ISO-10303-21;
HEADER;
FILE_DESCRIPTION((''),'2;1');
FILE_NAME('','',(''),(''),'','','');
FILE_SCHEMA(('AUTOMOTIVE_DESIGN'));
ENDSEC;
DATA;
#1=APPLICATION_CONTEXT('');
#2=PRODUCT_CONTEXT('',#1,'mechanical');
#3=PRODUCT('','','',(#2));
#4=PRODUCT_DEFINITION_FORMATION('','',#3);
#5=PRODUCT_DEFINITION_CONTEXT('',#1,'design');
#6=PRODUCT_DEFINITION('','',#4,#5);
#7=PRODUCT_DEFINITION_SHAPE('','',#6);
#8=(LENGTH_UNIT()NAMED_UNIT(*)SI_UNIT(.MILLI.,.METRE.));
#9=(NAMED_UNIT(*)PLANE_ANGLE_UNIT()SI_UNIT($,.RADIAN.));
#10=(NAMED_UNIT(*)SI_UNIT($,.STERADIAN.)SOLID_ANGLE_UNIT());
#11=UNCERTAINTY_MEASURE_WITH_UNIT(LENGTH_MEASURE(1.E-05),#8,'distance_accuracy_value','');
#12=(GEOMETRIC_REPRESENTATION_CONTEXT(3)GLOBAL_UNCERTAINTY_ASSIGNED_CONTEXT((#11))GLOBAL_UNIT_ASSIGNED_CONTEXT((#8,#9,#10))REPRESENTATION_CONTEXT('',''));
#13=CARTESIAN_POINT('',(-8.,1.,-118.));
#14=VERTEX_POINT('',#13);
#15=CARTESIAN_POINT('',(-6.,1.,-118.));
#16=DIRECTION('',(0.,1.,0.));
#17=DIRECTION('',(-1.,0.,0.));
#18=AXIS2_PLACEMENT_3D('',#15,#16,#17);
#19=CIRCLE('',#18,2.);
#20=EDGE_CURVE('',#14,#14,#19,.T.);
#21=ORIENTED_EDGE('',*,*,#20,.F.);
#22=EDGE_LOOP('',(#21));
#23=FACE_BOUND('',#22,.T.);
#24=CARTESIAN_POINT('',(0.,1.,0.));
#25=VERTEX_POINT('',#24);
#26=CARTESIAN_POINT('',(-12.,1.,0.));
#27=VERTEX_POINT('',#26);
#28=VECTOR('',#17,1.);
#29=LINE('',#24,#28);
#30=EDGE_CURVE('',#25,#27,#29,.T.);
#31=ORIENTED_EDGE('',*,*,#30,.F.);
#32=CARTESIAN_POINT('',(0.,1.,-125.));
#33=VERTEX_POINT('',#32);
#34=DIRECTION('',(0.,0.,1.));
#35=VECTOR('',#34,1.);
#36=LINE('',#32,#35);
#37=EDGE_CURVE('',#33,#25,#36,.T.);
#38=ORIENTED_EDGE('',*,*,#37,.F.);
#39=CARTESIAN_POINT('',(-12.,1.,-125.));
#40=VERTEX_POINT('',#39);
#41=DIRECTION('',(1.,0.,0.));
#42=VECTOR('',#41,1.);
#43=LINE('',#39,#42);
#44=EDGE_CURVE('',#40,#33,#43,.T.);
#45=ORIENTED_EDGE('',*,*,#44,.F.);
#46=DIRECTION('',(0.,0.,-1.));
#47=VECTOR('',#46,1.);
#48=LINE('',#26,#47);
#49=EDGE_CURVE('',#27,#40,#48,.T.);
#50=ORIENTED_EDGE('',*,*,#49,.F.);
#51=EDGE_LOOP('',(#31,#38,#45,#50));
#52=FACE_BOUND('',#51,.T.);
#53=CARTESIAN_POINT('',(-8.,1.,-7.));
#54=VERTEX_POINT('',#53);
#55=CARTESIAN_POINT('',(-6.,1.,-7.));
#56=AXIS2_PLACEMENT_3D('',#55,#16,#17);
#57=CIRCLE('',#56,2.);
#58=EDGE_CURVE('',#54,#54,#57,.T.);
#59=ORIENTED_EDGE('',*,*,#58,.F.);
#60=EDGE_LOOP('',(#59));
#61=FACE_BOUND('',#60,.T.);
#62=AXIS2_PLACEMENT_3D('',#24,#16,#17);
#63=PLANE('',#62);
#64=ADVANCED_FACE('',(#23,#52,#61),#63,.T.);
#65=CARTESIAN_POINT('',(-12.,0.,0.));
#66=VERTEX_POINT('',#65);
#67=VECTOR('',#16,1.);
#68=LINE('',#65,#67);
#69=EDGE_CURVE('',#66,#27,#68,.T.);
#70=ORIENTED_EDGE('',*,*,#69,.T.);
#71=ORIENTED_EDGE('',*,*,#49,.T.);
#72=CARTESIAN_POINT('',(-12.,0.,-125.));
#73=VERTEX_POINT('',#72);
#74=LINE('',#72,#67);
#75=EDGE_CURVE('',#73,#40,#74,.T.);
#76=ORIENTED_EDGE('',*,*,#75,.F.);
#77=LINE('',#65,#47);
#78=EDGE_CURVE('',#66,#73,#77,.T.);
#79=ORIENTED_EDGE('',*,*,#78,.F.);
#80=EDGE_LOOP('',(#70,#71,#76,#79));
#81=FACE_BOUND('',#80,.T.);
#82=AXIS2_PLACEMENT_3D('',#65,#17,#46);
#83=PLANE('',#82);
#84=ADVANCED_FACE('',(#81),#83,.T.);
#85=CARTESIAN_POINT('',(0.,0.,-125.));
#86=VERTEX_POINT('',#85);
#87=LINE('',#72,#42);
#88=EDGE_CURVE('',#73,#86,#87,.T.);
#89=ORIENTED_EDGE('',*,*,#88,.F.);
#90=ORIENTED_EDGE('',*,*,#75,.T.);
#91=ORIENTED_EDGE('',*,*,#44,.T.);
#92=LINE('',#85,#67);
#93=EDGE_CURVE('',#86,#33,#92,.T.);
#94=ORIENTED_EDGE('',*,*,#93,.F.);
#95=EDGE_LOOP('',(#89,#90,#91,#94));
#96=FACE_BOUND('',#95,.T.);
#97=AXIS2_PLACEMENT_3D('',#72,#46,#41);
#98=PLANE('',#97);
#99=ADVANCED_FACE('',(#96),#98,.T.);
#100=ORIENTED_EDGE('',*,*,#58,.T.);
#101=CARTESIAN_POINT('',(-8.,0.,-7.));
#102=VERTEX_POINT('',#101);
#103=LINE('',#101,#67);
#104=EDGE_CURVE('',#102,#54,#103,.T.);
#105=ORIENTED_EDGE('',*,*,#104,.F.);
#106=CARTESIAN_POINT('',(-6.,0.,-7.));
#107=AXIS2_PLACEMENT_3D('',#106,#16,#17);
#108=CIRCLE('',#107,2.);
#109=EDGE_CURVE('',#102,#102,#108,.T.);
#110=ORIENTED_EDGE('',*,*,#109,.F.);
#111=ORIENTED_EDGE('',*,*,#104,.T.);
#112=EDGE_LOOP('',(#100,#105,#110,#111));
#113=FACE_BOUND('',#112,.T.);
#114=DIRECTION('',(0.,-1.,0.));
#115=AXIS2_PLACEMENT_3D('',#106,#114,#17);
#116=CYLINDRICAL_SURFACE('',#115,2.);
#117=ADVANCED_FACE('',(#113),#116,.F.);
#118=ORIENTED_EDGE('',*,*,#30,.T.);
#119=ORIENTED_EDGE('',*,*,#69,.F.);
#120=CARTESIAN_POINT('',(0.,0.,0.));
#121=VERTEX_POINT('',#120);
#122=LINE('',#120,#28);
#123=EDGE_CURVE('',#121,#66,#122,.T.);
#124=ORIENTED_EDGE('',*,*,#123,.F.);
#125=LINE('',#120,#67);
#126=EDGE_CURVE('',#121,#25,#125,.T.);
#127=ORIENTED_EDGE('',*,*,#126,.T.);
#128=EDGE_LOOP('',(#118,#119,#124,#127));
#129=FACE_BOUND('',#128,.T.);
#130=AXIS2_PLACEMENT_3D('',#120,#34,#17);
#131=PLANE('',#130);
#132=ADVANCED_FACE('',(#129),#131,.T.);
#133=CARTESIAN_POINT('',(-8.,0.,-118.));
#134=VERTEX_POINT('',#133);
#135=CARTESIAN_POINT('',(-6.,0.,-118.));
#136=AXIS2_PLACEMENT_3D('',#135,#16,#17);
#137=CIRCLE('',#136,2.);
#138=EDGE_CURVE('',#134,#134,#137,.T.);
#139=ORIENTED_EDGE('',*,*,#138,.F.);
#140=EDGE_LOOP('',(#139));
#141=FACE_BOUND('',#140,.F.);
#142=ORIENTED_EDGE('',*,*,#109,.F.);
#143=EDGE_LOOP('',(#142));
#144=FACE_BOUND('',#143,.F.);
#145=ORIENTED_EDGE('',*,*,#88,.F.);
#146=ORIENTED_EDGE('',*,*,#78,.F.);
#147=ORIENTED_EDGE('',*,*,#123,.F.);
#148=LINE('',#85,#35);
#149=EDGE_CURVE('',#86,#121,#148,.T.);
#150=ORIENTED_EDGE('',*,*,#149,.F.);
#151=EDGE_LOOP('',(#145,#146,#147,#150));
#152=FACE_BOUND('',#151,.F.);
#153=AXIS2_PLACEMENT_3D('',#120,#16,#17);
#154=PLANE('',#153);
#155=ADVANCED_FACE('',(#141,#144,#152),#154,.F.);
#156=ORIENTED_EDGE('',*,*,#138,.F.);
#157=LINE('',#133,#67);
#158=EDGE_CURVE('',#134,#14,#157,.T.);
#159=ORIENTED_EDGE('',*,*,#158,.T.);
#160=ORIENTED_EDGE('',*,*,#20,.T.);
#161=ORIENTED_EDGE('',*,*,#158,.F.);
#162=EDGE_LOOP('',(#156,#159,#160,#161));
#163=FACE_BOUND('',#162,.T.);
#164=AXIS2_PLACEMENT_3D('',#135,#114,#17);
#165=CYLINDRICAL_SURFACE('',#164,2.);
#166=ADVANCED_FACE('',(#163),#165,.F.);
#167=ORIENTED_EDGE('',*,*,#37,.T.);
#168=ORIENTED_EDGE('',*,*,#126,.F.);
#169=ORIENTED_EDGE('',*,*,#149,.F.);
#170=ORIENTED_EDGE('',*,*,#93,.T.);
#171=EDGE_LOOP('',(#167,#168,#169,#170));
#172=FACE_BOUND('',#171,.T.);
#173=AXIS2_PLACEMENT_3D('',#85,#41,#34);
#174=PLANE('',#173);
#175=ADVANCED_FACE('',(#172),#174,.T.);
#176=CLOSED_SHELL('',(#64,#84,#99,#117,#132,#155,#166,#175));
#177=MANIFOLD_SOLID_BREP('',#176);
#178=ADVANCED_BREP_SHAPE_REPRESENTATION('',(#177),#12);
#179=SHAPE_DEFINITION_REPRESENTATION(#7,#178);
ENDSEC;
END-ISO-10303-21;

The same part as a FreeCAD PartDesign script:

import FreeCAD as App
import Part
import Sketcher
from FreeCAD import Vector
Q = App.Units.Quantity

doc = App.newDocument("Part")
body = doc.addObject("PartDesign::Body", "Body")

# Sketch on XZ plane
sketch1 = body.newObject("Sketcher::SketchObject", "Sketch")
sketch1.AttachmentSupport = (doc.getObject("XZ_Plane"), [""])
sketch1.MapMode = "FlatFace"
sketch1.addGeometry([
    Part.LineSegment(Vector(-12, 0, 0), Vector(0, 0, 0)),  # 0
    Part.LineSegment(Vector(0, 0, 0), Vector(0, -125, 0)),  # 1
    Part.LineSegment(Vector(0, -125, 0), Vector(-12, -125, 0)),  # 2
    Part.LineSegment(Vector(-12, -125, 0), Vector(-12, 0, 0)),  # 3
    Part.Circle(Vector(-6, -118, 0), Vector(0, 0, 1), 2),  # 4
    Part.Circle(Vector(-6, -7, 0), Vector(0, 0, 1), 2),  # 5
], False)
sketch1.addConstraint([
    Sketcher.Constraint("Coincident", 0, 2, 1, 1),
    Sketcher.Constraint("Coincident", 1, 2, 2, 1),
    Sketcher.Constraint("Coincident", 2, 2, 3, 1),
    Sketcher.Constraint("Coincident", 3, 2, 0, 1),
    Sketcher.Constraint("Horizontal", 0),
    Sketcher.Constraint("Vertical", 1),
    Sketcher.Constraint("Horizontal", 2),
    Sketcher.Constraint("Vertical", 3),
    Sketcher.Constraint("Coincident", 0, 2, -1, 1),
    Sketcher.Constraint("Equal", 4, 5),
    Sketcher.Constraint("Vertical", 4, 3, 5, 3),
    Sketcher.Constraint("Diameter", 4, Q("4 mm")),
    Sketcher.Constraint("DistanceX", 0, 1, 0, 2, Q("12 mm")),
    Sketcher.Constraint("DistanceY", 1, 2, 1, 1, Q("125 mm")),
    Sketcher.Constraint("DistanceX", 4, 3, -1, 1, Q("6 mm")),
    Sketcher.Constraint("DistanceY", 5, 3, -1, 1, Q("7 mm")),
    Sketcher.Constraint("DistanceY", 4, 3, 5, 3, Q("111 mm")),
])
pad1 = body.newObject("PartDesign::Pad", "Pad")
pad1.Profile = sketch1
pad1.Length = 1
pad1.Reversed = True

doc.recompute()
